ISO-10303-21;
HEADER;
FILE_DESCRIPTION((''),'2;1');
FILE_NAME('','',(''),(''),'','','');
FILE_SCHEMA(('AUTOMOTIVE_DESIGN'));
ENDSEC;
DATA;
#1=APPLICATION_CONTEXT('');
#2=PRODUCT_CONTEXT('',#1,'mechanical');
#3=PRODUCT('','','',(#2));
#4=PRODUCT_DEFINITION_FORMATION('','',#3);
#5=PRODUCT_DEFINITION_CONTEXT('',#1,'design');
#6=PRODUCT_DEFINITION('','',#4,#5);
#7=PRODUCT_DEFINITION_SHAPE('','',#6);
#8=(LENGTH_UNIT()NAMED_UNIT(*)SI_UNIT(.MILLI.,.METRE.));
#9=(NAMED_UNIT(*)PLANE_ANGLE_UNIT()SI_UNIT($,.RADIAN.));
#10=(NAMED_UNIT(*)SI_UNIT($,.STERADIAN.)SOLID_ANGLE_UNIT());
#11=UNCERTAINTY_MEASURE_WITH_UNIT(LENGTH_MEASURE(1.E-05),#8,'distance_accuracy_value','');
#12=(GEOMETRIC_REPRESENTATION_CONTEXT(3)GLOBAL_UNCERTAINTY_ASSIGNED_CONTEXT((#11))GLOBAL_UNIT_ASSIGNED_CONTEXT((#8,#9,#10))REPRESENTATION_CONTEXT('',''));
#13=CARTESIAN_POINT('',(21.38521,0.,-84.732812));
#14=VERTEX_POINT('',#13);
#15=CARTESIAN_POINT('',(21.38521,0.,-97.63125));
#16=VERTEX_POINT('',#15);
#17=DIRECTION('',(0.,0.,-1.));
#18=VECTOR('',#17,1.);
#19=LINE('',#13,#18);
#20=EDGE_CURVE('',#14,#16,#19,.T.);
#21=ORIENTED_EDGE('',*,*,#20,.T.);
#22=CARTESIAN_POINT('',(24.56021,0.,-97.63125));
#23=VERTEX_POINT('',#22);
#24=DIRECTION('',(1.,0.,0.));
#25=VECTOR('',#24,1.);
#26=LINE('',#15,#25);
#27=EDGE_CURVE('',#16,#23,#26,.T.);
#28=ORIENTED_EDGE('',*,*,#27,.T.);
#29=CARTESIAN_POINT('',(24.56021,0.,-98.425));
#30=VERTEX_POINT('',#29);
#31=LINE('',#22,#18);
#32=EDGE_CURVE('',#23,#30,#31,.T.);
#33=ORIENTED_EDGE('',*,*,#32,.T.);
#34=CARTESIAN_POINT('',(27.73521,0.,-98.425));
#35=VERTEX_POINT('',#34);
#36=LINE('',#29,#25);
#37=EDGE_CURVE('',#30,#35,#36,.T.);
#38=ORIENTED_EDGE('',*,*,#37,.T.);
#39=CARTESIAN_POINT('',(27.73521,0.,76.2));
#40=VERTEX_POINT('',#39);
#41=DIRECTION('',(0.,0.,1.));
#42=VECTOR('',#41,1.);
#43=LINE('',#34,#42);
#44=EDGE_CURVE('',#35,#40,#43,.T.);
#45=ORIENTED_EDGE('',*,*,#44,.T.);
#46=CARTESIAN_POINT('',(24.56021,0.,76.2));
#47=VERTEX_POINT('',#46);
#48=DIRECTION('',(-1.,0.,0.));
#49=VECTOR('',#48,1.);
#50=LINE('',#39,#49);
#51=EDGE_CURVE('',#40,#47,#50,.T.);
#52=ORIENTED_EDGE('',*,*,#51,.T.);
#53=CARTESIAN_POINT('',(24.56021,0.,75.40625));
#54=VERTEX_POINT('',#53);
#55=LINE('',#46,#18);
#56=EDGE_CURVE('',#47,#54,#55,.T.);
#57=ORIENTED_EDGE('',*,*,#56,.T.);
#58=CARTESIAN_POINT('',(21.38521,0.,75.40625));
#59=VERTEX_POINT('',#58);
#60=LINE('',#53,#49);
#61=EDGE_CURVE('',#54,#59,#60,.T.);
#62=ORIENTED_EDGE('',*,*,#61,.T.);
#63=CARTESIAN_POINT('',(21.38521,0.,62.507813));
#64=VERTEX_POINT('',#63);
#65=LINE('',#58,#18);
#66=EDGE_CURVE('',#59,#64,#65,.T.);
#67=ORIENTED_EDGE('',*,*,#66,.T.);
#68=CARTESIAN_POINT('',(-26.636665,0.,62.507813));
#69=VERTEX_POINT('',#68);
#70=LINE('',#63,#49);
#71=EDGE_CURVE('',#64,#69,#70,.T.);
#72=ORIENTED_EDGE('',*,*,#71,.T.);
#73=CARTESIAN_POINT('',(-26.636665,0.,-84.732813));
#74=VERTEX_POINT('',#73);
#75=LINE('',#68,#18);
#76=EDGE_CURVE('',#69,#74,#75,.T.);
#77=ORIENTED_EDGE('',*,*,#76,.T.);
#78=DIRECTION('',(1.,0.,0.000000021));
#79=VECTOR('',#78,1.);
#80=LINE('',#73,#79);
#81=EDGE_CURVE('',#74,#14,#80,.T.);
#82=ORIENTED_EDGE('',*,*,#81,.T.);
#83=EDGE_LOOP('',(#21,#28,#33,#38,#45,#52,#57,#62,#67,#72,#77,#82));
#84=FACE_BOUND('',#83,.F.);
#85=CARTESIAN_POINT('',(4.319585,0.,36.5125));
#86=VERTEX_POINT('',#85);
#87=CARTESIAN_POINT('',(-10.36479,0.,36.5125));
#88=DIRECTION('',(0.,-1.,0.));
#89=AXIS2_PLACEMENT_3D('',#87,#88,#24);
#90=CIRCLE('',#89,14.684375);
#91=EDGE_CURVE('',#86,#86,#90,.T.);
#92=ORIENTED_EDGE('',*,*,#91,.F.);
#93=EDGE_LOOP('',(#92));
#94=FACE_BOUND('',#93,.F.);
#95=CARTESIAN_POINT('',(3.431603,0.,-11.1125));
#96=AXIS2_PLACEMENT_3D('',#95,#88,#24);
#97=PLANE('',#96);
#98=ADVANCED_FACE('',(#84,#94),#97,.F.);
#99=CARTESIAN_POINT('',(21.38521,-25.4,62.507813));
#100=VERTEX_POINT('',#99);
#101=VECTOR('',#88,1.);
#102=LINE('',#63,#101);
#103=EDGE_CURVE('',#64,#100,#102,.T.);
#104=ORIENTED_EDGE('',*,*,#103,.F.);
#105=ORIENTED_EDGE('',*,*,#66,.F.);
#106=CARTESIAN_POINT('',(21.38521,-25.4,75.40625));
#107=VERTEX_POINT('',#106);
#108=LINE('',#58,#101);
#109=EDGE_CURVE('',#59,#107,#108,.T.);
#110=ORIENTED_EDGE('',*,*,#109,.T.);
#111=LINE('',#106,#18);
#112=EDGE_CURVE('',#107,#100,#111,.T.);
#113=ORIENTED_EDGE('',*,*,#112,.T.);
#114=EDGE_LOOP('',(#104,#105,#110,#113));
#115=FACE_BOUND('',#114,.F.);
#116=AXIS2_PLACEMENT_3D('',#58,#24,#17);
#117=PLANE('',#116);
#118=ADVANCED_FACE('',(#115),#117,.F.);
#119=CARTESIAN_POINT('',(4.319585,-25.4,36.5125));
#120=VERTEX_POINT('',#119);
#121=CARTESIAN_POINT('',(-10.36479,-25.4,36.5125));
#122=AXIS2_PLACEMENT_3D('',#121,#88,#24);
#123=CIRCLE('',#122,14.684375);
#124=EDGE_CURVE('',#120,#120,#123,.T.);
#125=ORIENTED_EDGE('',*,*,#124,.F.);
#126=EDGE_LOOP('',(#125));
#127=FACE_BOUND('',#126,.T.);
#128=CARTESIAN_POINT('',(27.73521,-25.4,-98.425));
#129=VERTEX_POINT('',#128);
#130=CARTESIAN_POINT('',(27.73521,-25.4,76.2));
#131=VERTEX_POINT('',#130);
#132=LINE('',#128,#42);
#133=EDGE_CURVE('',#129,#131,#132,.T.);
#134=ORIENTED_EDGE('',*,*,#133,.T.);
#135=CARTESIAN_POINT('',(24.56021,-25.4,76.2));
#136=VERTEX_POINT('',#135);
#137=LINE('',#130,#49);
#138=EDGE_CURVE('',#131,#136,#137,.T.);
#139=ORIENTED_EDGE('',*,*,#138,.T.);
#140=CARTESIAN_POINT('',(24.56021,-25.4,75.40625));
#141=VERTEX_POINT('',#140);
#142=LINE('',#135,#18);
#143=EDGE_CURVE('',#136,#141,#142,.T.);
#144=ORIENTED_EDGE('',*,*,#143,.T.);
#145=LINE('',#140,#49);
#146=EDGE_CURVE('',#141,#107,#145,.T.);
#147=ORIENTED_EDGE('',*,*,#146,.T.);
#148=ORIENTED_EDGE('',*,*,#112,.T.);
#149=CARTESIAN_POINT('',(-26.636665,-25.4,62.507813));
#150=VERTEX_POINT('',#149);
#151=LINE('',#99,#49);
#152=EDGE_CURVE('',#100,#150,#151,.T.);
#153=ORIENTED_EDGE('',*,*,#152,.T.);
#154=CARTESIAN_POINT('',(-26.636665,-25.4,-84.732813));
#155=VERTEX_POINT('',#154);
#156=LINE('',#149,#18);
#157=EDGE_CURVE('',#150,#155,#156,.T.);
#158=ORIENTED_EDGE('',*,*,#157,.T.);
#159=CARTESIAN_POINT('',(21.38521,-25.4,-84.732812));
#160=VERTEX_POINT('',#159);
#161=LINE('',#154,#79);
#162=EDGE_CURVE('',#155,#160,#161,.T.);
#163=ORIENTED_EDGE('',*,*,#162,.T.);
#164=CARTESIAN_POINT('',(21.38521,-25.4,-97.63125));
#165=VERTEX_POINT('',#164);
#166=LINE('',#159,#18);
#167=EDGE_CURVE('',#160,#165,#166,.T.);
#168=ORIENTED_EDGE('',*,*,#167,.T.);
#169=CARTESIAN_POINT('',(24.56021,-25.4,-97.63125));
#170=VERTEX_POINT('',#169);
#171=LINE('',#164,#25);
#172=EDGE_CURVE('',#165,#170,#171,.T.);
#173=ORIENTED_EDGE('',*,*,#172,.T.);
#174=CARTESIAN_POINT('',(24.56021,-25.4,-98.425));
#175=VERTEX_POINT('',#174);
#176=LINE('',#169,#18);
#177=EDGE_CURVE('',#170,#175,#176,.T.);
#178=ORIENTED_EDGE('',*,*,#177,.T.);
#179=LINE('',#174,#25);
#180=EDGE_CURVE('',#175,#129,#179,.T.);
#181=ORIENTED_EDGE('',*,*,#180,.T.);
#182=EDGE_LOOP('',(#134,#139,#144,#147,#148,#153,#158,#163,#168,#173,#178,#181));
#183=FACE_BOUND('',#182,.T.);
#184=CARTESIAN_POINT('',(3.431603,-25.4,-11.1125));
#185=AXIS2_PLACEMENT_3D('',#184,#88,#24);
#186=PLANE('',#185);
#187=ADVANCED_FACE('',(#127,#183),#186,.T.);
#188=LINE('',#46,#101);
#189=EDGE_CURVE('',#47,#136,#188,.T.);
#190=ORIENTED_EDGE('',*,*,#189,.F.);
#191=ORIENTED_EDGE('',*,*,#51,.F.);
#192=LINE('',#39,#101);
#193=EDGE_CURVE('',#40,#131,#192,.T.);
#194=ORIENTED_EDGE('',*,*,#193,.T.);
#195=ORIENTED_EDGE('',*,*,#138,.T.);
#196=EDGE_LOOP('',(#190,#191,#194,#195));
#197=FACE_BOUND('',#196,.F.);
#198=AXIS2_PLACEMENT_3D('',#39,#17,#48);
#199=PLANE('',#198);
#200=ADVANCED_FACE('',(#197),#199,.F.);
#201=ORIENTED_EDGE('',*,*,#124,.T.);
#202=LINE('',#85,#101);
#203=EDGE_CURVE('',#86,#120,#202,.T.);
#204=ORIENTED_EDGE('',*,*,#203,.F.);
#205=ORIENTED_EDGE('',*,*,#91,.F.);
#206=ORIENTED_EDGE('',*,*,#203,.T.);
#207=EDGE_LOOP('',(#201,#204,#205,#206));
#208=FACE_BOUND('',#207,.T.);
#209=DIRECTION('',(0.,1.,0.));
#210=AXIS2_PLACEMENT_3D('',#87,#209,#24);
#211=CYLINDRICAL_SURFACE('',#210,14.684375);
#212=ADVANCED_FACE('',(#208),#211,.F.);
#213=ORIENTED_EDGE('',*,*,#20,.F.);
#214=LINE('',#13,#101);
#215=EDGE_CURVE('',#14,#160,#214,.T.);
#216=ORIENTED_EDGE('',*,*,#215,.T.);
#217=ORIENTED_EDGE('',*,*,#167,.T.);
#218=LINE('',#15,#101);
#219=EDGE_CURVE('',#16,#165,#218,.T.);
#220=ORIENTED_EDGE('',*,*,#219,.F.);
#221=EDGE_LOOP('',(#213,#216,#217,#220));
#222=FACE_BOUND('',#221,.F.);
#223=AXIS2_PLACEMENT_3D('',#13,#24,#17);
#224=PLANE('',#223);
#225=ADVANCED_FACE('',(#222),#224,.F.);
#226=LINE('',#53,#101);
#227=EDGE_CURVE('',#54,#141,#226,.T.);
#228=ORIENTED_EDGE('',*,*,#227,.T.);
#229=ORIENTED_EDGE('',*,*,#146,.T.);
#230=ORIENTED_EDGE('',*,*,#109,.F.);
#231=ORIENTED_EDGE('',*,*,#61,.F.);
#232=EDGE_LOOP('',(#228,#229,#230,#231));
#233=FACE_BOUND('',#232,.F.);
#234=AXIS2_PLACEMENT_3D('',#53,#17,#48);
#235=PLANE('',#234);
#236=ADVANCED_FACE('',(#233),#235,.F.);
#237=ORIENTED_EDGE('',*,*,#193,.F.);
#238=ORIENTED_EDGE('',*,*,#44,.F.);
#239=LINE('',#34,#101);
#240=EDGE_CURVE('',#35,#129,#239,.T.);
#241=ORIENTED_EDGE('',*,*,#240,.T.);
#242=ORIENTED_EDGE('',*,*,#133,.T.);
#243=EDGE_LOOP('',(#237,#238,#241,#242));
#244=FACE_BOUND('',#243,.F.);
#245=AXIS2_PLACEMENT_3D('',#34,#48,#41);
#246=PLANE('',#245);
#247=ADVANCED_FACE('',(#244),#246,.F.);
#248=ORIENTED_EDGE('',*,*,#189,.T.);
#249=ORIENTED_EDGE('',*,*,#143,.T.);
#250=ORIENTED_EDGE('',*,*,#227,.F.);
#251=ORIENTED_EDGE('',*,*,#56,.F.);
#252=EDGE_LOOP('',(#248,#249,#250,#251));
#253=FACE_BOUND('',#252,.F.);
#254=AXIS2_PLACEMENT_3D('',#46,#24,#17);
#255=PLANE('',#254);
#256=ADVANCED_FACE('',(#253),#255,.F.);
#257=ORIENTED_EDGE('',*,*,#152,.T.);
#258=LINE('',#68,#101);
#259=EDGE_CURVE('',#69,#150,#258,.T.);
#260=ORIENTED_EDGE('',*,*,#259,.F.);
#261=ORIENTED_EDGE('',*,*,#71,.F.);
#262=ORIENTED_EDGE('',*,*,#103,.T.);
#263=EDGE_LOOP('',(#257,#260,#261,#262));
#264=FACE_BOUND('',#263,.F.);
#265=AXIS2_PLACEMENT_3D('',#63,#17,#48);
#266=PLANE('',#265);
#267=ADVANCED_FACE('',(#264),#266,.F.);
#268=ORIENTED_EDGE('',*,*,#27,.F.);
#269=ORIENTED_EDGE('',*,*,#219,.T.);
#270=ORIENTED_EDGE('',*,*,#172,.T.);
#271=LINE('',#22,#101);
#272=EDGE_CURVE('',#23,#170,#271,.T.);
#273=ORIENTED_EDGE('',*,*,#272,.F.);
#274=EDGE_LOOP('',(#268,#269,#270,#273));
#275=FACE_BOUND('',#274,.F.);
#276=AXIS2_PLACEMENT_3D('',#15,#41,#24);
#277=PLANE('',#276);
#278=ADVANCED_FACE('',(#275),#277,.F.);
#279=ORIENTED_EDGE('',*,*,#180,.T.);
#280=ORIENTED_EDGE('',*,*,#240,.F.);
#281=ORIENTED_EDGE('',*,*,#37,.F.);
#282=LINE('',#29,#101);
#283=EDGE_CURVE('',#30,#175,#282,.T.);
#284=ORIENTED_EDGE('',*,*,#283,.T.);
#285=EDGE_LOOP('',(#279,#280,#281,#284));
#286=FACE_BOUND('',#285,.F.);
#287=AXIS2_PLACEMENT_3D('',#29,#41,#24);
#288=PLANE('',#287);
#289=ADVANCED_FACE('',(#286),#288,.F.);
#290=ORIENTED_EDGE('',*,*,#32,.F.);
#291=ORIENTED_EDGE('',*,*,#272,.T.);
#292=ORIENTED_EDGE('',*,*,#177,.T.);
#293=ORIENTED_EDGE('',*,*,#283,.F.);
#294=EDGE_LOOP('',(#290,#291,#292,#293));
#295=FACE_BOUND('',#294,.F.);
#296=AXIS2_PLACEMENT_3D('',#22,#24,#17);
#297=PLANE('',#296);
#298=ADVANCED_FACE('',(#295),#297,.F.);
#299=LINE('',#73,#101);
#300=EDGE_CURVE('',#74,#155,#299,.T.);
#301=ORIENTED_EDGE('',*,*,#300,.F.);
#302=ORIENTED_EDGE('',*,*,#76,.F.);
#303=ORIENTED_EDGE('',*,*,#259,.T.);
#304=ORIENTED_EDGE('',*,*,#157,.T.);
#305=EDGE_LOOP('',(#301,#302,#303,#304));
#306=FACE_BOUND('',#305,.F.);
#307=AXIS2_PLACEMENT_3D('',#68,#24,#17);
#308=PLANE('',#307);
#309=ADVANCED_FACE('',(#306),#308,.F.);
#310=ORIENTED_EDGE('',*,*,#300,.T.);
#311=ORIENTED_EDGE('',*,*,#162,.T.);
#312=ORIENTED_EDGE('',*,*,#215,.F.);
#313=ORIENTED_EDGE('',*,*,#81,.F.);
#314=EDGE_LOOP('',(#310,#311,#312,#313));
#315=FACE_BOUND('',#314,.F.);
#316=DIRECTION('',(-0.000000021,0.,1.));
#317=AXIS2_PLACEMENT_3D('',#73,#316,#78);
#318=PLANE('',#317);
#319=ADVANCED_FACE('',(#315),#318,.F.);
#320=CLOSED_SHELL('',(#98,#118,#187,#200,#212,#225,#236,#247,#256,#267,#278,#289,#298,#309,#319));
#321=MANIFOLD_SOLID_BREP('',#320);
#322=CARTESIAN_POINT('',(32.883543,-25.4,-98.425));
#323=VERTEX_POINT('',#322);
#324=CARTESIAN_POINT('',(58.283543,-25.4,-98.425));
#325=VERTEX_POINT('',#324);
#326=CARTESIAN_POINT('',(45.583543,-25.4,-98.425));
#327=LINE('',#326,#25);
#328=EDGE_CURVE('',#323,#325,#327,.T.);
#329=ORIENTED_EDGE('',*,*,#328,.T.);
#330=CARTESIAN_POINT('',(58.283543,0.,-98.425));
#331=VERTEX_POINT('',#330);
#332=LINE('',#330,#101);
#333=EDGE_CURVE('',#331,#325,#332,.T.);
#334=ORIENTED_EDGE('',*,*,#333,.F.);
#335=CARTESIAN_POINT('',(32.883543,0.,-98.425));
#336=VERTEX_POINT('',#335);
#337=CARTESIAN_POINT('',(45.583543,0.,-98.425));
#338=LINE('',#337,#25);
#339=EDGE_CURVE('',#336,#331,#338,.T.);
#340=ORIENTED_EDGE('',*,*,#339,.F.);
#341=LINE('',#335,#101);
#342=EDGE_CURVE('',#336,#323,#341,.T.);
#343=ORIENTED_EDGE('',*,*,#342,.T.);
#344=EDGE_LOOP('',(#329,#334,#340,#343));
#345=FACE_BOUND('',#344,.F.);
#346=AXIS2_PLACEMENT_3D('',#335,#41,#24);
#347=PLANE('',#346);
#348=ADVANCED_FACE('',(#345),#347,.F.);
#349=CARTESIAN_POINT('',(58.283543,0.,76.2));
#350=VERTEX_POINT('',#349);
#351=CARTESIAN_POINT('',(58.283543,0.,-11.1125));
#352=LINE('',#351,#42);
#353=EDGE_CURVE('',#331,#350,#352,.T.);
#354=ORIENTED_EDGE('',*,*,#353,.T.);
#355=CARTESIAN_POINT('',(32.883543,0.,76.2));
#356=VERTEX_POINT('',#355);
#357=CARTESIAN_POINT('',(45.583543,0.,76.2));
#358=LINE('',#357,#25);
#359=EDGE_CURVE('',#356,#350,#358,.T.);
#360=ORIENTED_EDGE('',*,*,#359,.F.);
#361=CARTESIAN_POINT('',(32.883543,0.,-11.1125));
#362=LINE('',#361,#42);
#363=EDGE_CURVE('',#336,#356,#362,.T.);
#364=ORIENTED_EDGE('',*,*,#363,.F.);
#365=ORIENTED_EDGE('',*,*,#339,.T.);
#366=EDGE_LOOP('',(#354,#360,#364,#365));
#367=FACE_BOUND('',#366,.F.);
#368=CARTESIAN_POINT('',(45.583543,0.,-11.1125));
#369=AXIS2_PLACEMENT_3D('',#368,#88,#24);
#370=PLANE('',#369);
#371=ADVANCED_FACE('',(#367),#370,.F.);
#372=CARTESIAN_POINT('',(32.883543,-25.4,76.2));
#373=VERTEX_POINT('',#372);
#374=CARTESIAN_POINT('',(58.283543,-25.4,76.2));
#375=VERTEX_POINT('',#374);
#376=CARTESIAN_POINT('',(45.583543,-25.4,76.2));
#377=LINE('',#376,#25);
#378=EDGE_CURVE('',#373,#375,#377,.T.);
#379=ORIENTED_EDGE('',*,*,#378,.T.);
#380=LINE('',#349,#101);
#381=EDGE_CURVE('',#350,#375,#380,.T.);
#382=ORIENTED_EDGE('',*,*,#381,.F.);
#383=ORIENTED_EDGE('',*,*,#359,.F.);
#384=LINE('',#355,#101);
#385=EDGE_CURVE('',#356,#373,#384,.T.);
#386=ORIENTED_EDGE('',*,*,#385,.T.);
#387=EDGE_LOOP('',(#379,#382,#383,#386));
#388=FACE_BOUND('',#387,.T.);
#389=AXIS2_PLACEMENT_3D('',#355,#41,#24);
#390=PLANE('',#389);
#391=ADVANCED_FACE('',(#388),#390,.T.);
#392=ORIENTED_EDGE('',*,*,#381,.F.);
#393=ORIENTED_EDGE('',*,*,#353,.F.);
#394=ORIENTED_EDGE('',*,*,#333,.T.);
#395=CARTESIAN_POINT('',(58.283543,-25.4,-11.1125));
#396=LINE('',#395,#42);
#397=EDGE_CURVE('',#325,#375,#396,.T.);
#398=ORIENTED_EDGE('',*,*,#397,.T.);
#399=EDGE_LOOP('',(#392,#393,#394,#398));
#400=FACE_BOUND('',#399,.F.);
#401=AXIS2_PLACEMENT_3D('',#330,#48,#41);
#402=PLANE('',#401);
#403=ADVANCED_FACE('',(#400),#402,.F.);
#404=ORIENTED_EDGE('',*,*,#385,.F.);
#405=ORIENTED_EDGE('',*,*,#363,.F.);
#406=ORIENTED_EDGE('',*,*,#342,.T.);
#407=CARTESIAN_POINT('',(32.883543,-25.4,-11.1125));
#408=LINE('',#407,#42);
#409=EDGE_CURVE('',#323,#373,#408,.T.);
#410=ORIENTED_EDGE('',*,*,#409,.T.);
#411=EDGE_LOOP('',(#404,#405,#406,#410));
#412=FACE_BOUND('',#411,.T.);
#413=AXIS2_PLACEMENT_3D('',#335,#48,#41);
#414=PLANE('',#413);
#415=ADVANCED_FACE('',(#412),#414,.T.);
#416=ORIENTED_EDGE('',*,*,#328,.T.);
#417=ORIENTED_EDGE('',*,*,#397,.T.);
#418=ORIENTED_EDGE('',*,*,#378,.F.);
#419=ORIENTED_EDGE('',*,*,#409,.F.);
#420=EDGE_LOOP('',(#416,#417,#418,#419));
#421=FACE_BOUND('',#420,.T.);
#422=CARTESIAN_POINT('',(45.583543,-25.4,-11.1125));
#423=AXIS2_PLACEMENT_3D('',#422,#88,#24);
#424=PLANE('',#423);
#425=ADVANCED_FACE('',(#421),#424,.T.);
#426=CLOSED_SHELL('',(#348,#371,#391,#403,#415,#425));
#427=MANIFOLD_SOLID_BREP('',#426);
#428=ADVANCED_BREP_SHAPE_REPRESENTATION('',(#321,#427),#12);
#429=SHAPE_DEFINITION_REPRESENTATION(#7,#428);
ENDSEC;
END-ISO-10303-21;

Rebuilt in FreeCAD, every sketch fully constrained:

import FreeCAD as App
import Part
import Sketcher
from FreeCAD import Vector
Q = App.Units.Quantity

doc = App.newDocument("Part")
body = doc.addObject("PartDesign::Body", "Body")
body.AllowCompound = True

sketch1 = body.newObject("Sketcher::SketchObject", "Sketch")
sketch1.AttachmentSupport = (doc.getObject("XZ_Plane"), [""])
sketch1.MapMode = "FlatFace"
sketch1.addGeometry([
    Part.LineSegment(Vector(21.4, 62.5, 0), Vector(-26.6, 62.5, 0)),
    Part.LineSegment(Vector(-26.6, 62.5, 0), Vector(-26.6, -84.7, 0)),
    Part.LineSegment(Vector(-26.6, -84.7, 0), Vector(21.4, -84.7, 0)),
    Part.LineSegment(Vector(21.4, -84.7, 0), Vector(21.4, -97.6, 0)),
    Part.LineSegment(Vector(21.4, -97.6, 0), Vector(24.6, -97.6, 0)),
    Part.LineSegment(Vector(24.6, -97.6, 0), Vector(24.6, -98.4, 0)),
    Part.LineSegment(Vector(24.6, -98.4, 0), Vector(27.7, -98.4, 0)),
    Part.LineSegment(Vector(27.7, -98.4, 0), Vector(27.7, 76.2, 0)),
    Part.LineSegment(Vector(27.7, 76.2, 0), Vector(24.6, 76.2, 0)),
    Part.LineSegment(Vector(24.6, 76.2, 0), Vector(24.6, 75.4, 0)),
    Part.LineSegment(Vector(24.6, 75.4, 0), Vector(21.4, 75.4, 0)),
    Part.LineSegment(Vector(21.4, 75.4, 0), Vector(21.4, 62.5, 0)),
    Part.Circle(Vector(-10.4, 36.5, 0), Vector(0, 0, 1), 14.7),
    Part.LineSegment(Vector(32.9, 76.2, 0), Vector(32.9, -98.4, 0)),
    Part.LineSegment(Vector(32.9, -98.4, 0), Vector(58.3, -98.4, 0)),
    Part.LineSegment(Vector(58.3, -98.4, 0), Vector(58.3, 76.2, 0)),
    Part.LineSegment(Vector(58.3, 76.2, 0), Vector(32.9, 76.2, 0)),
], False)
sketch1.addConstraint([
    Sketcher.Constraint("Coincident", 0, 2, 1, 1),
    Sketcher.Constraint("Coincident", 1, 2, 2, 1),
    Sketcher.Constraint("Coincident", 2, 2, 3, 1),
    Sketcher.Constraint("Coincident", 3, 2, 4, 1),
    Sketcher.Constraint("Coincident", 4, 2, 5, 1),
    Sketcher.Constraint("Coincident", 5, 2, 6, 1),
    Sketcher.Constraint("Coincident", 6, 2, 7, 1),
    Sketcher.Constraint("Coincident", 7, 2, 8, 1),
    Sketcher.Constraint("Coincident", 8, 2, 9, 1),
    Sketcher.Constraint("Coincident", 9, 2, 10, 1),
    Sketcher.Constraint("Coincident", 10, 2, 11, 1),
    Sketcher.Constraint("Coincident", 11, 2, 0, 1),
    Sketcher.Constraint("Coincident", 13, 2, 14, 1),
    Sketcher.Constraint("Coincident", 14, 2, 15, 1),
    Sketcher.Constraint("Coincident", 15, 2, 16, 1),
    Sketcher.Constraint("Coincident", 16, 2, 13, 1),
    Sketcher.Constraint("Horizontal", 0),
    Sketcher.Constraint("Vertical", 1),
    Sketcher.Constraint("Horizontal", 2),
    Sketcher.Constraint("Vertical", 3),
    Sketcher.Constraint("Horizontal", 4),
    Sketcher.Constraint("Vertical", 5),
    Sketcher.Constraint("Horizontal", 6),
    Sketcher.Constraint("Vertical", 7),
    Sketcher.Constraint("Horizontal", 8),
    Sketcher.Constraint("Vertical", 9),
    Sketcher.Constraint("Horizontal", 10),
    Sketcher.Constraint("Vertical", 11),
    Sketcher.Constraint("Vertical", 13),
    Sketcher.Constraint("Horizontal", 14),
    Sketcher.Constraint("Vertical", 15),
    Sketcher.Constraint("Horizontal", 16),
    Sketcher.Constraint("Horizontal", 6, 2, 13, 2),
    Sketcher.Constraint("Horizontal", 8, 2, 15, 2),
    Sketcher.Constraint("Vertical", 5, 2, 8, 2),
    Sketcher.Constraint("Vertical", 3, 2, 10, 2),
    Sketcher.Constraint("Equal", 4, 6),
    Sketcher.Constraint("Equal", 5, 9),
    Sketcher.Constraint("Equal", 3, 11),
    Sketcher.Constraint("DistanceX", 14, 1, 14, 2, Q("1 in")),
    Sketcher.Constraint("Diameter", 12, Q("1.15625 in")),
    Sketcher.Constraint("DistanceY", -1, 1, 7, 2, Q("3 in")),
    Sketcher.Constraint("DistanceX", 12, 3, 7, 2, Q("1.5 in")),
    Sketcher.Constraint("DistanceX", 0, 2, 0, 1, Q("1.890625 in")),
    Sketcher.Constraint("DistanceX", 4, 1, 4, 2, Q("0.125 in")),
    Sketcher.Constraint("DistanceY", 1, 2, 1, 1, Q("5.796875 in")),
    Sketcher.Constraint("DistanceY", 5, 2, 5, 1, Q("0.03125 in")),
    Sketcher.Constraint("DistanceY", 7, 1, 7, 2, Q("6.875 in")),
    Sketcher.Constraint("DistanceY", -1, 1, 12, 3, Q("1.4375 in")),
    Sketcher.Constraint("DistanceX", 12, 3, -1, 1, Q("10.36479 mm")),
    Sketcher.Constraint("DistanceX", -1, 1, 13, 2, Q("32.883543 mm")),
])
pad1 = body.newObject("PartDesign::Pad", "Pad")
pad1.Profile = sketch1
pad1.Length = Q("1 in")

doc.recompute()
